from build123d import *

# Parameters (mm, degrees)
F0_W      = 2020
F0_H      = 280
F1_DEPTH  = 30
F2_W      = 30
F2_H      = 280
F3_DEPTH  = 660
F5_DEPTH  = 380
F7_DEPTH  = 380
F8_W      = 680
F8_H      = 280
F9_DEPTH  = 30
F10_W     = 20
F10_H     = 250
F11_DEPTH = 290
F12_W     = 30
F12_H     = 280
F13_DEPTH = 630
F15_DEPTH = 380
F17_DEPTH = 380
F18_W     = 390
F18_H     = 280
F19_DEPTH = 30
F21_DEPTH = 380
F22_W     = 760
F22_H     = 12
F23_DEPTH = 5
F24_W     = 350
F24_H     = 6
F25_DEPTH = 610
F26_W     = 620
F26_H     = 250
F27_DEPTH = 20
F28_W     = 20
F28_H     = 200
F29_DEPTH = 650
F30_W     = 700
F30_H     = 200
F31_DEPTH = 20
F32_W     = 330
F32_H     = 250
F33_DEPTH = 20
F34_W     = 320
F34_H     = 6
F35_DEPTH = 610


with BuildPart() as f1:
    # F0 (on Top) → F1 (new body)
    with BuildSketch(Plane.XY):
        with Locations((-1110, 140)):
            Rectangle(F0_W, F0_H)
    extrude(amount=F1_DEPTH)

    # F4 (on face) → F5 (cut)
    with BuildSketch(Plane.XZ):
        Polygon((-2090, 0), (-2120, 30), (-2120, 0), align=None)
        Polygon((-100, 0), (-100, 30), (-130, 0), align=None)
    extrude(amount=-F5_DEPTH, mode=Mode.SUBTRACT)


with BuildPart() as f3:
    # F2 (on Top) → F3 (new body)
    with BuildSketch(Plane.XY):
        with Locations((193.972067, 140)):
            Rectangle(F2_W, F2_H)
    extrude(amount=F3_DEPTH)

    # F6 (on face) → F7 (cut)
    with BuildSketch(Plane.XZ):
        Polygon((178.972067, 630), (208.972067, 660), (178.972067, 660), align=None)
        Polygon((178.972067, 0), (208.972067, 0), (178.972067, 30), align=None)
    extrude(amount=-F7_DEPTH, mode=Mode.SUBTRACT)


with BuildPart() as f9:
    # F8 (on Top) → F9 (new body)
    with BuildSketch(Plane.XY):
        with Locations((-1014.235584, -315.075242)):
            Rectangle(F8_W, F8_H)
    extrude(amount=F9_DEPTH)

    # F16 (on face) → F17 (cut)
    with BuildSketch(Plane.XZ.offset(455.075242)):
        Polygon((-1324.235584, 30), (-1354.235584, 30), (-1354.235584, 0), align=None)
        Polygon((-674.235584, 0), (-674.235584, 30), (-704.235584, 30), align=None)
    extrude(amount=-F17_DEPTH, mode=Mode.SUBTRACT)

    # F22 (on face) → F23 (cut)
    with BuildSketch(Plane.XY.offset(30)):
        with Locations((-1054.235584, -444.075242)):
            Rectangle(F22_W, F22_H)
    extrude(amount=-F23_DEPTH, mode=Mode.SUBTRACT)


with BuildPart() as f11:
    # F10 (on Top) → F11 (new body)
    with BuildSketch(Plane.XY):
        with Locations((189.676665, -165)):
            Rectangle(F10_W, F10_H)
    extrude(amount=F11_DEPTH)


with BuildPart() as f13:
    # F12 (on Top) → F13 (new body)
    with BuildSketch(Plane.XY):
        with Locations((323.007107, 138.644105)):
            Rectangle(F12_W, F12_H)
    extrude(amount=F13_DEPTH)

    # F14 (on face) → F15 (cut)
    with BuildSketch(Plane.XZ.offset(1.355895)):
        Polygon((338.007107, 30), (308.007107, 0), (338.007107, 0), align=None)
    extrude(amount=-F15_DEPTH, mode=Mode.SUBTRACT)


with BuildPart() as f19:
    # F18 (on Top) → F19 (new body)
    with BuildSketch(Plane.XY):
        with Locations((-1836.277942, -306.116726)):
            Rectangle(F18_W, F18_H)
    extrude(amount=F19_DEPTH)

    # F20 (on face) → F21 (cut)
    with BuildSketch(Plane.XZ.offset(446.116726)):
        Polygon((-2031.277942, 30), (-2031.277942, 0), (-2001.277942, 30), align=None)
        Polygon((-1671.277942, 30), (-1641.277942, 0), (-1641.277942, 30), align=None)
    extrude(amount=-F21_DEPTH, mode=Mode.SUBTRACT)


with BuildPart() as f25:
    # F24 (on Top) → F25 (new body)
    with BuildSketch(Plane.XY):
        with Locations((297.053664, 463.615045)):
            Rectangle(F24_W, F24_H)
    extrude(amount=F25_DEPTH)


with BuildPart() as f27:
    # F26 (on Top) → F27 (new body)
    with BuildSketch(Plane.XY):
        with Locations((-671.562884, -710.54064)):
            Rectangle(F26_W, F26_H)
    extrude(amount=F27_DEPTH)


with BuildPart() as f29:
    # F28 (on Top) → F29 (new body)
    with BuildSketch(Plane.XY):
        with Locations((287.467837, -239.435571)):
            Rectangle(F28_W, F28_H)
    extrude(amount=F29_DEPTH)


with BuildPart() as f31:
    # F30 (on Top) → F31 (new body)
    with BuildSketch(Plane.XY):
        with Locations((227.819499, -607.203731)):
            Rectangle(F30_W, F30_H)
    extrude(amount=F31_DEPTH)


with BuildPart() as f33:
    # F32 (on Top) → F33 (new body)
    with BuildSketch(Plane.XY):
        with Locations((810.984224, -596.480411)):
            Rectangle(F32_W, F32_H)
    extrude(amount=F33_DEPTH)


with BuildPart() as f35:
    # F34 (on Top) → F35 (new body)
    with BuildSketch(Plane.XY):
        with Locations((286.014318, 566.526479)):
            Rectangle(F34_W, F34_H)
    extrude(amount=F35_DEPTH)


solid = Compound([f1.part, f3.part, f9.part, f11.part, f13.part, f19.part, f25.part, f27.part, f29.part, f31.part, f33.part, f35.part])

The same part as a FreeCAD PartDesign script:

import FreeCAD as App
import Part
import Sketcher
from FreeCAD import Vector
Q = App.Units.Quantity


def add_polygon(sketch, points):
    """Adds a closed chain of lines whose ends are joined by coincident constraints."""
    first, n = sketch.GeometryCount, len(points)
    for a, b in zip(points, points[1:] + points[:1]):
        sketch.addGeometry(Part.LineSegment(App.Vector(*a, 0), App.Vector(*b, 0)), False)
    for i in range(n):
        sketch.addConstraint(Sketcher.Constraint("Coincident", first + i, 2, first + (i + 1) % n, 1))

doc = App.newDocument("Part")
body = doc.addObject("PartDesign::Body", "Body")

# Sketch on XY plane
sketch1 = doc.addObject("Sketcher::SketchObject", "Sketch")
body.addObject(sketch1)
sketch1.AttachmentSupport = (doc.XY_Plane, [""])
sketch1.MapMode = "FlatFace"
add_polygon(sketch1, [(-2120, 280), (-2120, 0), (-100, 0), (-100, 280)])  # lines 0-3
sketch1.addConstraint([
    Sketcher.Constraint("Vertical", 0),
    Sketcher.Constraint("Horizontal", 1),
    Sketcher.Constraint("Vertical", 2),
    Sketcher.Constraint("Horizontal", 3),
    Sketcher.Constraint("PointOnObject", 0, 2, -1),
    Sketcher.Constraint("DistanceX", 1, 1, 1, 2, Q("2020 mm")),
    Sketcher.Constraint("DistanceY", 0, 2, 0, 1, Q("280 mm")),
    Sketcher.Constraint("DistanceX", 0, 2, -1, 1, Q("2120 mm")),
])
pad1 = doc.addObject("PartDesign::Pad", "Pad")
body.addObject(pad1)
pad1.Profile = sketch1
pad1.Length = 30

# Sketch on XZ plane
sketch2 = doc.addObject("Sketcher::SketchObject", "Sketch001")
body.addObject(sketch2)
sketch2.AttachmentSupport = (doc.XZ_Plane, [""])
sketch2.MapMode = "FlatFace"
add_polygon(sketch2, [(-2090, 0), (-2120, 30), (-2120, 0)])  # lines 0-2
add_polygon(sketch2, [(-100, 0), (-100, 30), (-130, 0)])  # lines 3-5
sketch2.addConstraint([
    Sketcher.Constraint("Vertical", 1),
    Sketcher.Constraint("Horizontal", 2),
    Sketcher.Constraint("Vertical", 3),
    Sketcher.Constraint("Horizontal", 5),
    Sketcher.Constraint("PointOnObject", 1, 2, -1),
    Sketcher.Constraint("PointOnObject", 4, 2, -1),
    Sketcher.Constraint("Perpendicular", 0, 4),
    Sketcher.Constraint("Horizontal", 0, 2, 3, 2),
    Sketcher.Constraint("Equal", 2, 5),
    Sketcher.Constraint("DistanceX", 2, 1, 2, 2, Q("30 mm")),
    Sketcher.Constraint("DistanceX", 0, 2, -1, 1, Q("2120 mm")),
    Sketcher.Constraint("DistanceX", 3, 2, -1, 1, Q("100 mm")),
])
pocket1 = doc.addObject("PartDesign::Pocket", "Pocket")
body.addObject(pocket1)
pocket1.Profile = sketch2
pocket1.Length = 380
body2 = doc.addObject("PartDesign::Body", "Body001")

# Sketch on XY plane
sketch3 = doc.addObject("Sketcher::SketchObject", "Sketch002")
body2.addObject(sketch3)
sketch3.AttachmentSupport = (doc.getObject("XY_Plane001"), [""])
sketch3.MapMode = "FlatFace"
add_polygon(sketch3, [(179, 280), (179, 0), (209, 0), (209, 280)])  # lines 0-3
sketch3.addConstraint([
    Sketcher.Constraint("Vertical", 0),
    Sketcher.Constraint("Horizontal", 1),
    Sketcher.Constraint("Vertical", 2),
    Sketcher.Constraint("Horizontal", 3),
    Sketcher.Constraint("PointOnObject", 0, 2, -1),
    Sketcher.Constraint("DistanceX", 1, 1, 1, 2, Q("30 mm")),
    Sketcher.Constraint("DistanceY", 0, 2, 0, 1, Q("280 mm")),
    Sketcher.Constraint("DistanceX", -1, 1, 0, 2, Q("178.972067 mm")),
])
pad2 = doc.addObject("PartDesign::Pad", "Pad001")
body2.addObject(pad2)
pad2.Profile = sketch3
pad2.Length = 660

# Sketch on XZ plane
sketch4 = doc.addObject("Sketcher::SketchObject", "Sketch003")
body2.addObject(sketch4)
sketch4.AttachmentSupport = (doc.getObject("XZ_Plane001"), [""])
sketch4.MapMode = "FlatFace"
add_polygon(sketch4, [(179, 630), (209, 660), (179, 660)])  # lines 0-2
add_polygon(sketch4, [(179, 0), (209, 0), (179, 30)])  # lines 3-5
sketch4.addConstraint([
    Sketcher.Constraint("Horizontal", 1),
    Sketcher.Constraint("Vertical", 2),
    Sketcher.Constraint("Horizontal", 3),
    Sketcher.Constraint("Vertical", 5),
    Sketcher.Constraint("PointOnObject", 3, 2, -1),
    Sketcher.Constraint("Perpendicular", 0, 4),
    Sketcher.Constraint("Vertical", 0, 2, 3, 2),
    Sketcher.Constraint("Vertical", 2, 2, 4, 2),
    Sketcher.Constraint("Equal", 3, 2),
    Sketcher.Constraint("DistanceX", 1, 2, 1, 1, Q("30 mm")),
    Sketcher.Constraint("DistanceY", -1, 1, 0, 2, Q("660 mm")),
    Sketcher.Constraint("DistanceX", -1, 1, 0, 2, Q("208.972067 mm")),
])
pocket2 = doc.addObject("PartDesign::Pocket", "Pocket001")
body2.addObject(pocket2)
pocket2.Profile = sketch4
pocket2.Length = 380
body3 = doc.addObject("PartDesign::Body", "Body002")

# Sketch on XY plane
sketch5 = doc.addObject("Sketcher::SketchObject", "Sketch004")
body3.addObject(sketch5)
sketch5.AttachmentSupport = (doc.getObject("XY_Plane002"), [""])
sketch5.MapMode = "FlatFace"
add_polygon(sketch5, [(-1354, -175), (-1354, -455), (-674, -455), (-674, -175)])  # lines 0-3
sketch5.addConstraint([
    Sketcher.Constraint("Vertical", 0),
    Sketcher.Constraint("Horizontal", 1),
    Sketcher.Constraint("Vertical", 2),
    Sketcher.Constraint("Horizontal", 3),
    Sketcher.Constraint("DistanceX", 1, 1, 1, 2, Q("680 mm")),
    Sketcher.Constraint("DistanceY", 0, 2, 0, 1, Q("280 mm")),
    Sketcher.Constraint("DistanceY", 0, 2, -1, 1, Q("455.075242 mm")),
    Sketcher.Constraint("DistanceX", 0, 2, -1, 1, Q("1354.235584 mm")),
])
pad3 = doc.addObject("PartDesign::Pad", "Pad002")
body3.addObject(pad3)
pad3.Profile = sketch5
pad3.Length = 30

# Sketch on XZ plane
sketch6 = doc.addObject("Sketcher::SketchObject", "Sketch005")
body3.addObject(sketch6)
sketch6.AttachmentSupport = (doc.getObject("XZ_Plane002"), [""])
sketch6.MapMode = "FlatFace"
sketch6.AttachmentOffset = App.Placement(Vector(0, 0, 455.075242), App.Rotation())
add_polygon(sketch6, [(-1324, 30), (-1354, 30), (-1354, 0)])  # lines 0-2
add_polygon(sketch6, [(-674, 0), (-674, 30), (-704, 30)])  # lines 3-5
sketch6.addConstraint([
    Sketcher.Constraint("Horizontal", 0),
    Sketcher.Constraint("Vertical", 1),
    Sketcher.Constraint("Vertical", 3),
    Sketcher.Constraint("Horizontal", 4),
    Sketcher.Constraint("PointOnObject", 1, 2, -1),
    Sketcher.Constraint("PointOnObject", 5, 2, -1),
    Sketcher.Constraint("Perpendicular", 2, 5),
    Sketcher.Constraint("Horizontal", 2, 2, 3, 2),
    Sketcher.Constraint("Equal", 0, 4),
    Sketcher.Constraint("DistanceX", 0, 2, 0, 1, Q("30 mm")),
    Sketcher.Constraint("DistanceX", 2, 2, 3, 2, Q("650 mm")),
    Sketcher.Constraint("DistanceX", 0, 2, -1, 1, Q("1354.235584 mm")),
])
pocket3 = doc.addObject("PartDesign::Pocket", "Pocket002")
body3.addObject(pocket3)
pocket3.Profile = sketch6
pocket3.Length = 380

# Sketch on XY plane
sketch7 = doc.addObject("Sketcher::SketchObject", "Sketch006")
body3.addObject(sketch7)
sketch7.AttachmentSupport = (doc.getObject("XY_Plane002"), [""])
sketch7.MapMode = "FlatFace"
sketch7.AttachmentOffset = App.Placement(Vector(0, 0, 30), App.Rotation())
add_polygon(sketch7, [(-1434, -438), (-1434, -450), (-674, -450), (-674, -438)])  # lines 0-3
sketch7.addConstraint([
    Sketcher.Constraint("Vertical", 0),
    Sketcher.Constraint("Horizontal", 1),
    Sketcher.Constraint("Vertical", 2),
    Sketcher.Constraint("Horizontal", 3),
    Sketcher.Constraint("DistanceX", 1, 1, 1, 2, Q("760 mm")),
    Sketcher.Constraint("DistanceY", 0, 2, 0, 1, Q("12 mm")),
    Sketcher.Constraint("DistanceY", 0, 2, -1, 1, Q("450.075242 mm")),
    Sketcher.Constraint("DistanceX", 0, 2, -1, 1, Q("1434.235584 mm")),
])
pocket4 = doc.addObject("PartDesign::Pocket", "Pocket003")
body3.addObject(pocket4)
pocket4.Profile = sketch7
pocket4.Length = 5
body4 = doc.addObject("PartDesign::Body", "Body003")

# Sketch on XY plane
sketch8 = doc.addObject("Sketcher::SketchObject", "Sketch007")
body4.addObject(sketch8)
sketch8.AttachmentSupport = (doc.getObject("XY_Plane003"), [""])
sketch8.MapMode = "FlatFace"
add_polygon(sketch8, [(180, -40), (180, -290), (200, -290), (200, -40)])  # lines 0-3
sketch8.addConstraint([
    Sketcher.Constraint("Vertical", 0),
    Sketcher.Constraint("Horizontal", 1),
    Sketcher.Constraint("Vertical", 2),
    Sketcher.Constraint("Horizontal", 3),
    Sketcher.Constraint("DistanceX", 1, 1, 1, 2, Q("20 mm")),
    Sketcher.Constraint("DistanceY", 0, 2, 0, 1, Q("250 mm")),
    Sketcher.Constraint("DistanceY", 0, 2, -1, 1, Q("290 mm")),
    Sketcher.Constraint("DistanceX", -1, 1, 0, 2, Q("179.676665 mm")),
])
pad4 = doc.addObject("PartDesign::Pad", "Pad003")
body4.addObject(pad4)
pad4.Profile = sketch8
pad4.Length = 290
body5 = doc.addObject("PartDesign::Body", "Body004")

# Sketch on XY plane
sketch9 = doc.addObject("Sketcher::SketchObject", "Sketch008")
body5.addObject(sketch9)
sketch9.AttachmentSupport = (doc.getObject("XY_Plane004"), [""])
sketch9.MapMode = "FlatFace"
add_polygon(sketch9, [(308, 279), (308, -1), (338, -1), (338, 279)])  # lines 0-3
sketch9.addConstraint([
    Sketcher.Constraint("Vertical", 0),
    Sketcher.Constraint("Horizontal", 1),
    Sketcher.Constraint("Vertical", 2),
    Sketcher.Constraint("Horizontal", 3),
    Sketcher.Constraint("DistanceX", 1, 1, 1, 2, Q("30 mm")),
    Sketcher.Constraint("DistanceY", 0, 2, 0, 1, Q("280 mm")),
    Sketcher.Constraint("DistanceX", -1, 1, 0, 2, Q("308.007107 mm")),
    Sketcher.Constraint("DistanceY", 0, 2, -1, 1, Q("1.355895 mm")),
])
pad5 = doc.addObject("PartDesign::Pad", "Pad004")
body5.addObject(pad5)
pad5.Profile = sketch9
pad5.Length = 630

# Sketch on XZ plane
sketch10 = doc.addObject("Sketcher::SketchObject", "Sketch009")
body5.addObject(sketch10)
sketch10.AttachmentSupport = (doc.getObject("XZ_Plane004"), [""])
sketch10.MapMode = "FlatFace"
sketch10.AttachmentOffset = App.Placement(Vector(0, 0, 1.355895), App.Rotation())
add_polygon(sketch10, [(338, 30), (308, 0), (338, 0)])  # lines 0-2
sketch10.addConstraint([
    Sketcher.Constraint("Horizontal", 1),
    Sketcher.Constraint("Vertical", 2),
    Sketcher.Constraint("PointOnObject", 0, 2, -1),
    Sketcher.Constraint("Equal", 1, 2),
    Sketcher.Constraint("DistanceX", 1, 1, 1, 2, Q("30 mm")),
    Sketcher.Constraint("DistanceX", -1, 1, 0, 2, Q("308.007107 mm")),
])
pocket5 = doc.addObject("PartDesign::Pocket", "Pocket004")
body5.addObject(pocket5)
pocket5.Profile = sketch10
pocket5.Length = 380
body6 = doc.addObject("PartDesign::Body", "Body005")

# Sketch on XY plane
sketch11 = doc.addObject("Sketcher::SketchObject", "Sketch010")
body6.addObject(sketch11)
sketch11.AttachmentSupport = (doc.getObject("XY_Plane005"), [""])
sketch11.MapMode = "FlatFace"
add_polygon(sketch11, [(-2031, -166), (-2031, -446), (-1641, -446), (-1641, -166)])  # lines 0-3
sketch11.addConstraint([
    Sketcher.Constraint("Vertical", 0),
    Sketcher.Constraint("Horizontal", 1),
    Sketcher.Constraint("Vertical", 2),
    Sketcher.Constraint("Horizontal", 3),
    Sketcher.Constraint("DistanceX", 1, 1, 1, 2, Q("390 mm")),
    Sketcher.Constraint("DistanceY", 0, 2, 0, 1, Q("280 mm")),
    Sketcher.Constraint("DistanceX", 0, 2, -1, 1, Q("2031.277942 mm")),
    Sketcher.Constraint("DistanceY", 0, 2, -1, 1, Q("446.116726 mm")),
])
pad6 = doc.addObject("PartDesign::Pad", "Pad005")
body6.addObject(pad6)
pad6.Profile = sketch11
pad6.Length = 30

# Sketch on XZ plane
sketch12 = doc.addObject("Sketcher::SketchObject", "Sketch011")
body6.addObject(sketch12)
sketch12.AttachmentSupport = (doc.getObject("XZ_Plane005"), [""])
sketch12.MapMode = "FlatFace"
sketch12.AttachmentOffset = App.Placement(Vector(0, 0, 446.116726), App.Rotation())
add_polygon(sketch12, [(-2031, 30), (-2031, 0), (-2001, 30)])  # lines 0-2
add_polygon(sketch12, [(-1671, 30), (-1641, 0), (-1641, 30)])  # lines 3-5
sketch12.addConstraint([
    Sketcher.Constraint("Vertical", 0),
    Sketcher.Constraint("Horizontal", 2),
    Sketcher.Constraint("Vertical", 4),
    Sketcher.Constraint("Horizontal", 5),
    Sketcher.Constraint("PointOnObject", 0, 2, -1),
    Sketcher.Constraint("PointOnObject", 3, 2, -1),
    Sketcher.Constraint("Perpendicular", 1, 3),
    Sketcher.Constraint("Horizontal", 2, 2, 4, 2),
    Sketcher.Constraint("Equal", 2, 5),
    Sketcher.Constraint("DistanceX", 2, 2, 2, 1, Q("30 mm")),
    Sketcher.Constraint("DistanceX", 1, 2, 3, 2, Q("360 mm")),
    Sketcher.Constraint("DistanceX", 0, 2, -1, 1, Q("2031.277942 mm")),
])
pocket6 = doc.addObject("PartDesign::Pocket", "Pocket005")
body6.addObject(pocket6)
pocket6.Profile = sketch12
pocket6.Length = 380
body7 = doc.addObject("PartDesign::Body", "Body006")

# Sketch on XY plane
sketch13 = doc.addObject("Sketcher::SketchObject", "Sketch012")
body7.addObject(sketch13)
sketch13.AttachmentSupport = (doc.getObject("XY_Plane006"), [""])
sketch13.MapMode = "FlatFace"
add_polygon(sketch13, [(122, 467), (122, 461), (472, 461), (472, 467)])  # lines 0-3
sketch13.addConstraint([
    Sketcher.Constraint("Vertical", 0),
    Sketcher.Constraint("Horizontal", 1),
    Sketcher.Constraint("Vertical", 2),
    Sketcher.Constraint("Horizontal", 3),
    Sketcher.Constraint("DistanceX", 1, 1, 1, 2, Q("350 mm")),
    Sketcher.Constraint("DistanceY", 0, 2, 0, 1, Q("6 mm")),
    Sketcher.Constraint("DistanceX", -1, 1, 0, 2, Q("122.053664 mm")),
    Sketcher.Constraint("DistanceY", -1, 1, 0, 2, Q("460.615045 mm")),
])
pad7 = doc.addObject("PartDesign::Pad", "Pad006")
body7.addObject(pad7)
pad7.Profile = sketch13
pad7.Length = 610
body8 = doc.addObject("PartDesign::Body", "Body007")

# Sketch on XY plane
sketch14 = doc.addObject("Sketcher::SketchObject", "Sketch013")
body8.addObject(sketch14)
sketch14.AttachmentSupport = (doc.getObject("XY_Plane007"), [""])
sketch14.MapMode = "FlatFace"
add_polygon(sketch14, [(-982, -586), (-982, -836), (-362, -836), (-362, -586)])  # lines 0-3
sketch14.addConstraint([
    Sketcher.Constraint("Vertical", 0),
    Sketcher.Constraint("Horizontal", 1),
    Sketcher.Constraint("Vertical", 2),
    Sketcher.Constraint("Horizontal", 3),
    Sketcher.Constraint("DistanceX", 1, 1, 1, 2, Q("620 mm")),
    Sketcher.Constraint("DistanceY", 0, 2, 0, 1, Q("250 mm")),
    Sketcher.Constraint("DistanceY", 0, 2, -1, 1, Q("835.54064 mm")),
    Sketcher.Constraint("DistanceX", 0, 2, -1, 1, Q("981.562884 mm")),
])
pad8 = doc.addObject("PartDesign::Pad", "Pad007")
body8.addObject(pad8)
pad8.Profile = sketch14
pad8.Length = 20
body9 = doc.addObject("PartDesign::Body", "Body008")

# Sketch on XY plane
sketch15 = doc.addObject("Sketcher::SketchObject", "Sketch014")
body9.addObject(sketch15)
sketch15.AttachmentSupport = (doc.getObject("XY_Plane008"), [""])
sketch15.MapMode = "FlatFace"
add_polygon(sketch15, [(277, -139), (277, -339), (297, -339), (297, -139)])  # lines 0-3
sketch15.addConstraint([
    Sketcher.Constraint("Vertical", 0),
    Sketcher.Constraint("Horizontal", 1),
    Sketcher.Constraint("Vertical", 2),
    Sketcher.Constraint("Horizontal", 3),
    Sketcher.Constraint("DistanceX", 1, 1, 1, 2, Q("20 mm")),
    Sketcher.Constraint("DistanceY", 0, 2, 0, 1, Q("200 mm")),
    Sketcher.Constraint("DistanceY", 0, 2, -1, 1, Q("339.435571 mm")),
    Sketcher.Constraint("DistanceX", -1, 1, 0, 2, Q("277.467837 mm")),
])
pad9 = doc.addObject("PartDesign::Pad", "Pad008")
body9.addObject(pad9)
pad9.Profile = sketch15
pad9.Length = 650
body10 = doc.addObject("PartDesign::Body", "Body009")

# Sketch on XY plane
sketch16 = doc.addObject("Sketcher::SketchObject", "Sketch015")
body10.addObject(sketch16)
sketch16.AttachmentSupport = (doc.getObject("XY_Plane009"), [""])
sketch16.MapMode = "FlatFace"
add_polygon(sketch16, [(-122, -507), (-122, -707), (578, -707), (578, -507)])  # lines 0-3
sketch16.addConstraint([
    Sketcher.Constraint("Vertical", 0),
    Sketcher.Constraint("Horizontal", 1),
    Sketcher.Constraint("Vertical", 2),
    Sketcher.Constraint("Horizontal", 3),
    Sketcher.Constraint("DistanceX", 1, 1, 1, 2, Q("700 mm")),
    Sketcher.Constraint("DistanceY", 0, 2, 0, 1, Q("200 mm")),
    Sketcher.Constraint("DistanceX", 0, 2, -1, 1, Q("122.180501 mm")),
    Sketcher.Constraint("DistanceY", 0, 2, -1, 1, Q("707.203731 mm")),
])
pad10 = doc.addObject("PartDesign::Pad", "Pad009")
body10.addObject(pad10)
pad10.Profile = sketch16
pad10.Length = 20
body11 = doc.addObject("PartDesign::Body", "Body010")

# Sketch on XY plane
sketch17 = doc.addObject("Sketcher::SketchObject", "Sketch016")
body11.addObject(sketch17)
sketch17.AttachmentSupport = (doc.getObject("XY_Plane010"), [""])
sketch17.MapMode = "FlatFace"
add_polygon(sketch17, [(646, -471), (646, -721), (976, -721), (976, -471)])  # lines 0-3
sketch17.addConstraint([
    Sketcher.Constraint("Vertical", 0),
    Sketcher.Constraint("Horizontal", 1),
    Sketcher.Constraint("Vertical", 2),
    Sketcher.Constraint("Horizontal", 3),
    Sketcher.Constraint("DistanceX", 1, 1, 1, 2, Q("330 mm")),
    Sketcher.Constraint("DistanceY", 0, 2, 0, 1, Q("250 mm")),
    Sketcher.Constraint("DistanceY", 0, 2, -1, 1, Q("721.480411 mm")),
    Sketcher.Constraint("DistanceX", -1, 1, 0, 2, Q("645.984224 mm")),
])
pad11 = doc.addObject("PartDesign::Pad", "Pad010")
body11.addObject(pad11)
pad11.Profile = sketch17
pad11.Length = 20
body12 = doc.addObject("PartDesign::Body", "Body011")

# Sketch on XY plane
sketch18 = doc.addObject("Sketcher::SketchObject", "Sketch017")
body12.addObject(sketch18)
sketch18.AttachmentSupport = (doc.getObject("XY_Plane011"), [""])
sketch18.MapMode = "FlatFace"
add_polygon(sketch18, [(126, 570), (126, 564), (446, 564), (446, 570)])  # lines 0-3
sketch18.addConstraint([
    Sketcher.Constraint("Vertical", 0),
    Sketcher.Constraint("Horizontal", 1),
    Sketcher.Constraint("Vertical", 2),
    Sketcher.Constraint("Horizontal", 3),
    Sketcher.Constraint("DistanceX", 1, 1, 1, 2, Q("320 mm")),
    Sketcher.Constraint("DistanceY", 0, 2, 0, 1, Q("6 mm")),
    Sketcher.Constraint("DistanceX", -1, 1, 0, 2, Q("126.014318 mm")),
    Sketcher.Constraint("DistanceY", -1, 1, 0, 2, Q("563.526479 mm")),
])
pad12 = doc.addObject("PartDesign::Pad", "Pad011")
body12.addObject(pad12)
pad12.Profile = sketch18
pad12.Length = 610

doc.recompute()
